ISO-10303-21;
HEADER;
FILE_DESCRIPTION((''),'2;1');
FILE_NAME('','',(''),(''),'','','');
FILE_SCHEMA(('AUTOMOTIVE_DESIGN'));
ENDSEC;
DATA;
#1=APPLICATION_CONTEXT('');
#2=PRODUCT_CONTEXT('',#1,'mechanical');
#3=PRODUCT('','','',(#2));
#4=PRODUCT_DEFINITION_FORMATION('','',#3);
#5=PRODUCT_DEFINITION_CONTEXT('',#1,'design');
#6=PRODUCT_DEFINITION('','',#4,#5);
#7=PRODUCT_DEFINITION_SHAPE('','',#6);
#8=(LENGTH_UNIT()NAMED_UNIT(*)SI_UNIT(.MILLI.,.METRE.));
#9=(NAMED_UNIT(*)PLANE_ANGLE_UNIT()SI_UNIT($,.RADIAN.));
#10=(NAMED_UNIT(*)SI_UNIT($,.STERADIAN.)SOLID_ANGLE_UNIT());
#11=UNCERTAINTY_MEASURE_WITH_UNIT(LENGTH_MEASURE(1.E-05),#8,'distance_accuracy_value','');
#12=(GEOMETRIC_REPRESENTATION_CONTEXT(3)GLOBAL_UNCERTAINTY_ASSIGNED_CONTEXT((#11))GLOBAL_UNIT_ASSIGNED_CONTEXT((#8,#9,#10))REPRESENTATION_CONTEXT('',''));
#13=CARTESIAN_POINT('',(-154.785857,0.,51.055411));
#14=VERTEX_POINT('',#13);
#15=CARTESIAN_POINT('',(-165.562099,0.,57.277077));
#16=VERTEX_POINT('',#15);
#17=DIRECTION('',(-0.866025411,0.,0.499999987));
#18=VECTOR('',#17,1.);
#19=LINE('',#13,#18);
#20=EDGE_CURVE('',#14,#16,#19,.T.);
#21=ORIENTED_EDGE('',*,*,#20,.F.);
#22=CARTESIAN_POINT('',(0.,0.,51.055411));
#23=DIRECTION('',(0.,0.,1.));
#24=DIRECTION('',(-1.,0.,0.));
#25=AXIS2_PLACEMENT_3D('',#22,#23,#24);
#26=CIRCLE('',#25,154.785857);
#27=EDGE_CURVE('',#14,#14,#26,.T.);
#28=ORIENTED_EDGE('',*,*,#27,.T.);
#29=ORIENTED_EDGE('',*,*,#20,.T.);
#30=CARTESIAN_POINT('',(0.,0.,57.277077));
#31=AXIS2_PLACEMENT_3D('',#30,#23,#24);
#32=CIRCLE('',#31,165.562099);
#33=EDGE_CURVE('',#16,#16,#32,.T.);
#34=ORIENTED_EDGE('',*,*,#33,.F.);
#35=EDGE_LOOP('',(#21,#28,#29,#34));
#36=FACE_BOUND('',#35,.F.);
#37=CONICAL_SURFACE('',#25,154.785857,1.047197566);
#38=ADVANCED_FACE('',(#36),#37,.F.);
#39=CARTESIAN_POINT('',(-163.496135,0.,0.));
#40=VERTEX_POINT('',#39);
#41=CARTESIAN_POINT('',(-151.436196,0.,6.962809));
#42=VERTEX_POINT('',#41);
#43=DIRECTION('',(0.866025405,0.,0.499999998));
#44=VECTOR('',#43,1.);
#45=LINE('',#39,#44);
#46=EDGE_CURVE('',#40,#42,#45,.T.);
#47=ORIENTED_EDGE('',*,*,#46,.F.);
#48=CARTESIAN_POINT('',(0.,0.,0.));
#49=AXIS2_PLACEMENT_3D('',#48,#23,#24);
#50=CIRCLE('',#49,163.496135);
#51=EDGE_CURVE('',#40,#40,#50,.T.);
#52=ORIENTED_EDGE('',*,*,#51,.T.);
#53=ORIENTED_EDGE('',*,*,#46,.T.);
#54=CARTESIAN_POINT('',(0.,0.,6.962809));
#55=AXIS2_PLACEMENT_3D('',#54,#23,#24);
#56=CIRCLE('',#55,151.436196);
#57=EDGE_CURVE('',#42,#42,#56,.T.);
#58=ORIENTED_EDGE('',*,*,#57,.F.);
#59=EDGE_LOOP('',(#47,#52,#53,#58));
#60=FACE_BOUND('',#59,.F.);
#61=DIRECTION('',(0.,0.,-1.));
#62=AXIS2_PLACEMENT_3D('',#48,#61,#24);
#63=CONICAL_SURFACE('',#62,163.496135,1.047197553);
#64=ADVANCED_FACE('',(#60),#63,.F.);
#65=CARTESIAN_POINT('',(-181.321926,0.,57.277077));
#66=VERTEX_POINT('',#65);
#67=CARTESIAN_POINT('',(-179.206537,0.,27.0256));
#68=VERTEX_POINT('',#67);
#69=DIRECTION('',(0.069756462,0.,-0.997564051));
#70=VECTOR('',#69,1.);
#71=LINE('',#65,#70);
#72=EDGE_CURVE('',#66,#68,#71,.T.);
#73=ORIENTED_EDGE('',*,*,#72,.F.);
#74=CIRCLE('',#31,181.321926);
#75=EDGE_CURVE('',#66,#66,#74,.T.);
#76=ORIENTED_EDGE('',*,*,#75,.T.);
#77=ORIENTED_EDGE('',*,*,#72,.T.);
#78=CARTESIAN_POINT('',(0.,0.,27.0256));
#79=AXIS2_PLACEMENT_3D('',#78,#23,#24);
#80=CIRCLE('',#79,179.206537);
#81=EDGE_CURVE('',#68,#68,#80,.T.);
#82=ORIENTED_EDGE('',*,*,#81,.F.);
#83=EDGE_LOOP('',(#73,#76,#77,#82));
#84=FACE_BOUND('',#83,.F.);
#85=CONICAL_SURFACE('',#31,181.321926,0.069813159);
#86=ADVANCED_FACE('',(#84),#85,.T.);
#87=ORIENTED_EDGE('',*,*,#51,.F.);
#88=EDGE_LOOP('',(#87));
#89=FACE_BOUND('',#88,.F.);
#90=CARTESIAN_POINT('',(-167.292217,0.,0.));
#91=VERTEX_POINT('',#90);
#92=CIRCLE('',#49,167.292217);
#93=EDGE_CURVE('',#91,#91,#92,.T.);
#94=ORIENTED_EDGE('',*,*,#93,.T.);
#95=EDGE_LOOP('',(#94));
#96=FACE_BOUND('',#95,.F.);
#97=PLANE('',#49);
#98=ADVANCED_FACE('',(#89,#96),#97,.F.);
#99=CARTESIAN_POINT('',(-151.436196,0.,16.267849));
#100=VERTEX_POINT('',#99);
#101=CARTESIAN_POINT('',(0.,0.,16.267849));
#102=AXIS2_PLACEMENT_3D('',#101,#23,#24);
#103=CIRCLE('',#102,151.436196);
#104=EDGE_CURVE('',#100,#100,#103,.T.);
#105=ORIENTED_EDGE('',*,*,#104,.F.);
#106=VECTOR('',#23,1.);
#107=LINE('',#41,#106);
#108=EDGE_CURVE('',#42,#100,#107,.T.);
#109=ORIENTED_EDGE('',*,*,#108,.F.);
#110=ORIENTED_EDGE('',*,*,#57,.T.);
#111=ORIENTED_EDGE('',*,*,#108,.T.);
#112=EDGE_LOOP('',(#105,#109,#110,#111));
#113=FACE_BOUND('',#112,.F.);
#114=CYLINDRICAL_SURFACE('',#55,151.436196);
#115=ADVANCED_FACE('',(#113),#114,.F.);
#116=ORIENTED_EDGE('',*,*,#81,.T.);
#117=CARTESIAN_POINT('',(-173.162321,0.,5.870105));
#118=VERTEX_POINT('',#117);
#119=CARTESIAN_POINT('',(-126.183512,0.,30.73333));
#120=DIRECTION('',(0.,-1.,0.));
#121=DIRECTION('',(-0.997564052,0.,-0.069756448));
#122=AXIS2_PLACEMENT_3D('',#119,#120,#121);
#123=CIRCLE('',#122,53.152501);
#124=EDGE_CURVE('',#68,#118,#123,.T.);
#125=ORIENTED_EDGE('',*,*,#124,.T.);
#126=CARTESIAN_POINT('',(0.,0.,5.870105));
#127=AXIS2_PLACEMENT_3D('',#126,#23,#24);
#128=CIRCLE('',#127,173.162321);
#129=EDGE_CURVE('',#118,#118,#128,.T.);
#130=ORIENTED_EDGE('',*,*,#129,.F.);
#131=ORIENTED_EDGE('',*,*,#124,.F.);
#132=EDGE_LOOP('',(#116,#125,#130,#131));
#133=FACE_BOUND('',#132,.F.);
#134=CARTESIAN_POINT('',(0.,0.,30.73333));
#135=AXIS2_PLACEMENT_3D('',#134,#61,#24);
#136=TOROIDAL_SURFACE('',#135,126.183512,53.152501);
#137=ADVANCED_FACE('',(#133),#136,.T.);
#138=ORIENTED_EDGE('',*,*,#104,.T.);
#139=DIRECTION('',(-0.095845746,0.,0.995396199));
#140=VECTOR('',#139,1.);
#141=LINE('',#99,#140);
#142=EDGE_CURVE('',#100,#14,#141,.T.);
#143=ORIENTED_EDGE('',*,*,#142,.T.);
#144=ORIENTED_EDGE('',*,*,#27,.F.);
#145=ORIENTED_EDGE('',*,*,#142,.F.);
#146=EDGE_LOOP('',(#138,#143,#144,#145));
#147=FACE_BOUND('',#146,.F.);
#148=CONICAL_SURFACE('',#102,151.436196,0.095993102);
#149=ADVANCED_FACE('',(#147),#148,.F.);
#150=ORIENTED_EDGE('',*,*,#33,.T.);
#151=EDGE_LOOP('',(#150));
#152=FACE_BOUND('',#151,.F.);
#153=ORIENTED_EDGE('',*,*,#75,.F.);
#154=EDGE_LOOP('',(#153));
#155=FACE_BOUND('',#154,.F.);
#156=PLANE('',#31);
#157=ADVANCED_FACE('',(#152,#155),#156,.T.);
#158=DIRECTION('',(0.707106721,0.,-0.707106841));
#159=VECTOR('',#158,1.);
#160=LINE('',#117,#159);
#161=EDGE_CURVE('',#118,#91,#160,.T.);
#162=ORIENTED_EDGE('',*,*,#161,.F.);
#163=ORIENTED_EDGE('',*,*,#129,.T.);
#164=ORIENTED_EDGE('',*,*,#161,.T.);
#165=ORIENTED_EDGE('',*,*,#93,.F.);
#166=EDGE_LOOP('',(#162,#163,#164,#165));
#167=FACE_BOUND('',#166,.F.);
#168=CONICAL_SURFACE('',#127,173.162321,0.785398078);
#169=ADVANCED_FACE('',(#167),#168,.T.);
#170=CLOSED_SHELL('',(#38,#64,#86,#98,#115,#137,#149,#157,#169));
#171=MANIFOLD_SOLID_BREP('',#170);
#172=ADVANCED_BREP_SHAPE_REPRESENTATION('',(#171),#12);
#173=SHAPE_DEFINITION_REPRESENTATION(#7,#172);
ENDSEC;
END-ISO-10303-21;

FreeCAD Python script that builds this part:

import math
import FreeCAD as App
import Part
import Sketcher

V = App.Vector
Q = App.Units.Quantity

doc = App.newDocument("Part")
params = doc.addObject("Spreadsheet::Sheet", "Params")
for row, (alias, value) in enumerate([
    ("revolution_angle", "360 deg"),
], start=1):
    params.set(f"A{row}", alias)
    params.set(f"B{row}", "=" + value)
    params.setAlias(f"B{row}", alias)

body = doc.addObject("PartDesign::Body", "Body")

sketch1 = body.newObject("Sketcher::SketchObject", "Sketch")
sketch1.AttachmentSupport = (doc.getObject("XZ_Plane"), [""])
sketch1.MapMode = "FlatFace"
sketch1.addGeometry(Part.LineSegment(V(-167.3, 0, 0), V(-163.5, 0, 0)), False)
sketch1.addGeometry(Part.LineSegment(V(-163.5, 0, 0), V(-151.4, 7, 0)), False)
sketch1.addGeometry(Part.LineSegment(V(-151.4, 7, 0), V(-151.4, 16.3, 0)), False)
sketch1.addGeometry(Part.LineSegment(V(-151.4, 16.3, 0), V(-154.8, 51.1, 0)), False)
sketch1.addGeometry(Part.LineSegment(V(-154.8, 51.1, 0), V(-165.6, 57.3, 0)), False)
sketch1.addGeometry(Part.LineSegment(V(-165.6, 57.3, 0), V(-181.3, 57.3, 0)), False)
sketch1.addGeometry(Part.LineSegment(V(-181.3, 57.3, 0), V(-179.2, 27, 0)), False)
sketch1.addGeometry(Part.ArcOfCircle(Part.Circle(V(-126.2, 30.7, 0), V(0, 0, 1), 53.2), math.radians(-176), math.radians(-152)), False)
sketch1.addGeometry(Part.LineSegment(V(-173.2, 5.9, 0), V(-167.3, 0, 0)), False)
sketch1.addConstraint(Sketcher.Constraint("Coincident", 0, 2, 1, 1))
sketch1.addConstraint(Sketcher.Constraint("Coincident", 1, 2, 2, 1))
sketch1.addConstraint(Sketcher.Constraint("Coincident", 2, 2, 3, 1))
sketch1.addConstraint(Sketcher.Constraint("Coincident", 3, 2, 4, 1))
sketch1.addConstraint(Sketcher.Constraint("Coincident", 4, 2, 5, 1))
sketch1.addConstraint(Sketcher.Constraint("Coincident", 5, 2, 6, 1))
sketch1.addConstraint(Sketcher.Constraint("Tangent", 6, 2, 7, 1))
sketch1.addConstraint(Sketcher.Constraint("Coincident", 7, 2, 8, 1))
sketch1.addConstraint(Sketcher.Constraint("Coincident", 8, 2, 0, 1))
sketch1.addConstraint(Sketcher.Constraint("Horizontal", 0))
sketch1.addConstraint(Sketcher.Constraint("Vertical", 2))
sketch1.addConstraint(Sketcher.Constraint("Horizontal", 5))
sketch1.addConstraint(Sketcher.Constraint("PointOnObject", 0, 2, -1))
sketch1.addConstraint(Sketcher.Constraint("Angle", 1, Q("30 deg")))
sketch1.addConstraint(Sketcher.Constraint("Angle", 4, Q("150.000001 deg")))
sketch1.addConstraint(Sketcher.Constraint("Angle", 6, Q("-86.000001 deg")))
sketch1.addConstraint(Sketcher.Constraint("Angle", 8, Q("-45.000005 deg")))
sketch1.addConstraint(Sketcher.Constraint("Angle", 3, Q("95.5 deg")))
sketch1.addConstraint(Sketcher.Constraint("Radius", 7, Q("53.152501 mm")))
sketch1.addConstraint(Sketcher.Constraint("DistanceX", 0, 1, 0, 2, Q("3.796082 mm")))
sketch1.addConstraint(Sketcher.Constraint("DistanceY", 2, 1, 2, 2, Q("9.30504 mm")))
sketch1.addConstraint(Sketcher.Constraint("DistanceX", 4, 2, -1, 1, Q("165.562099 mm")))
sketch1.addConstraint(Sketcher.Constraint("DistanceY", -1, 1, 6, 2, Q("27.0256 mm")))
sketch1.addConstraint(Sketcher.Constraint("DistanceX", 6, 2, 0, 2, Q("15.710402 mm")))
sketch1.addConstraint(Sketcher.Constraint("Distance", 1, Q("13.925618 mm")))
sketch1.addConstraint(Sketcher.Constraint("DistanceX", 5, 2, 5, 1, Q("15.759827 mm")))
sketch1.addConstraint(Sketcher.Constraint("DistanceY", -1, 1, 3, 2, Q("51.055411 mm")))
revolution = body.newObject("PartDesign::Revolution", "Revolution")
revolution.Profile = sketch1
revolution.ReferenceAxis = (sketch1, ["V_Axis"])
revolution.setExpression("Angle", "Params.revolution_angle")

doc.recompute()
